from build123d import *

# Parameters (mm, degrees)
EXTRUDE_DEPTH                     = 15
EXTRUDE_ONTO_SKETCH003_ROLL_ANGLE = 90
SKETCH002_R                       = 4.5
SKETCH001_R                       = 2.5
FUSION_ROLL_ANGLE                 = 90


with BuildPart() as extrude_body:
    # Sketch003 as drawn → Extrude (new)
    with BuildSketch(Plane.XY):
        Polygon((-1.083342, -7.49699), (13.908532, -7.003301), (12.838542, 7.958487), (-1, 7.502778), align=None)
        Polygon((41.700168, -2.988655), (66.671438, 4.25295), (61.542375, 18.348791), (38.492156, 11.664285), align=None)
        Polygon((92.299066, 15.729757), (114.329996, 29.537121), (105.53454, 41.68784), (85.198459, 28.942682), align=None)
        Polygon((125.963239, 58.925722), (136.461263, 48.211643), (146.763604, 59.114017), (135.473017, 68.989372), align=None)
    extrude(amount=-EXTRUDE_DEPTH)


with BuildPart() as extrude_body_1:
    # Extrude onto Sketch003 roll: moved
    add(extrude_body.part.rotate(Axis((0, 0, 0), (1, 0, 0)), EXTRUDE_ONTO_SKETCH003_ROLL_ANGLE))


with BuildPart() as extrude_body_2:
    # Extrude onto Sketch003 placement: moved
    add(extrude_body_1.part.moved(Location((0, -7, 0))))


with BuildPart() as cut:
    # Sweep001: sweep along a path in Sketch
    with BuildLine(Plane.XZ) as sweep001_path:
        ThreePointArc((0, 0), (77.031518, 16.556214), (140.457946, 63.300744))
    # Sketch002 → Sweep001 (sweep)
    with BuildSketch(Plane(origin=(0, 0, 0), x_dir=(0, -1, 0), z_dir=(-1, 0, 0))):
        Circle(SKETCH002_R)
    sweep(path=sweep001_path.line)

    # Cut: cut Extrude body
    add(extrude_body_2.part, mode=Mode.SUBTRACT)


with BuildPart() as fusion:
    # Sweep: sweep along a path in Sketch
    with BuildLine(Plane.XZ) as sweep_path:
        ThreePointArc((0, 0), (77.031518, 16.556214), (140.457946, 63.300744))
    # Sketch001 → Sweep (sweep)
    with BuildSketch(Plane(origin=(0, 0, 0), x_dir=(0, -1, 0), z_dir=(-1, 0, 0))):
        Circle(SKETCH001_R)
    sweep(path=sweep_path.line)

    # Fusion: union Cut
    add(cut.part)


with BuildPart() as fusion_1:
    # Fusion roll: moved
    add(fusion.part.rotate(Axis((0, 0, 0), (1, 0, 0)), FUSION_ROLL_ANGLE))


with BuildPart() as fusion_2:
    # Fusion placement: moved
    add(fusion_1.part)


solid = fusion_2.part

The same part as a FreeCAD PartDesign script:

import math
import FreeCAD as App
import Part
import Sketcher

V = App.Vector
Q = App.Units.Quantity


def add_polygon(sketch, points):
    """Adds a closed chain of lines whose ends are joined by coincident constraints."""
    first, n = sketch.GeometryCount, len(points)
    for a, b in zip(points, points[1:] + points[:1]):
        sketch.addGeometry(Part.LineSegment(App.Vector(*a, 0), App.Vector(*b, 0)), False)
    for i in range(n):
        sketch.addConstraint(Sketcher.Constraint("Coincident", first + i, 2, first + (i + 1) % n, 1))

doc = App.newDocument("Part")
body = doc.addObject("PartDesign::Body", "Body")
body.AllowCompound = True

sketch1 = doc.addObject("Sketcher::SketchObject", "Sketch")
body.addObject(sketch1)
sketch1.AttachmentSupport = (doc.XY_Plane, [""])
sketch1.MapMode = "FlatFace"
add_polygon(sketch1, [(-1, -7), (14, -7), (13, 8), (-1, 8)])
add_polygon(sketch1, [(42, -3), (67, 4), (62, 18), (38, 12)])
add_polygon(sketch1, [(92, 16), (114, 30), (106, 42), (85, 29)])
add_polygon(sketch1, [(126, 59), (136, 48), (147, 59), (135, 69)])
sketch1.addConstraint([
    Sketcher.Constraint("Parallel", 0, 2),
    Sketcher.Constraint("Parallel", 4, 6),
    Sketcher.Constraint("Parallel", 8, 10),
    Sketcher.Constraint("Parallel", 13, 15),
    Sketcher.Constraint("Equal", 0, 1),
    Sketcher.Constraint("Equal", 1, 3),
    Sketcher.Constraint("Equal", 3, 5),
    Sketcher.Constraint("Equal", 5, 7),
    Sketcher.Constraint("Equal", 4, 8),
    Sketcher.Constraint("Equal", 7, 9),
    Sketcher.Constraint("Equal", 6, 10),
    Sketcher.Constraint("Equal", 9, 11),
    Sketcher.Constraint("Equal", 11, 12),
    Sketcher.Constraint("Equal", 12, 13),
    Sketcher.Constraint("Equal", 13, 14),
    Sketcher.Constraint("Equal", 2, 15),
    Sketcher.Constraint("Distance", 0, Q("15 mm")),
    Sketcher.Constraint("DistanceX", 2, 2, -1, 1, Q("1 mm")),
    Sketcher.Constraint("Distance", 4, Q("26.000099 mm")),
    Sketcher.Constraint("Distance", 6, Q("23.9999 mm")),
    Sketcher.Constraint("DistanceY", 0, 2, -1, 1, Q("7.003301 mm")),
    Sketcher.Constraint("DistanceX", 9, 2, 15, 2, Q("20.428699 mm")),
    Sketcher.Constraint("DistanceY", 8, 2, 15, 2, Q("29.388601 mm")),
    Sketcher.Constraint("DistanceX", -1, 1, 0, 2, Q("13.908532 mm")),
    Sketcher.Constraint("DistanceY", -1, 1, 2, 2, Q("7.502778 mm")),
    Sketcher.Constraint("DistanceY", -1, 1, 4, 2, Q("4.25295 mm")),
    Sketcher.Constraint("DistanceY", -1, 1, 5, 2, Q("18.348791 mm")),
    Sketcher.Constraint("DistanceY", -1, 1, 8, 2, Q("29.537121 mm")),
    Sketcher.Constraint("DistanceX", -1, 1, 9, 2, Q("105.53454 mm")),
    Sketcher.Constraint("DistanceY", -1, 1, 9, 2, Q("41.68784 mm")),
    Sketcher.Constraint("DistanceX", 3, 2, 4, 2, Q("67.75478 mm")),
    Sketcher.Constraint("DistanceY", 10, 2, 12, 2, Q("19.268961 mm")),
])
pad1 = doc.addObject("PartDesign::Pad", "Pad")
body.addObject(pad1)
pad1.Profile = sketch1
pad1.Length = 15
pad1.Reversed = True
body2 = doc.addObject("PartDesign::Body", "Body001")
body2.AllowCompound = True
doc.recompute()

body.Placement = App.Placement(V(0, 0, 0), App.Rotation(V(1, 0, 0), 90))
boolean = doc.addObject("PartDesign::Boolean", "Boolean")
body2.addObject(boolean)
boolean.Type = "Fuse"
boolean.addObjects([body])
body3 = doc.addObject("PartDesign::Body", "Body002")
body3.AllowCompound = True
doc.recompute()

body2.Placement = App.Placement(V(0, -7, 0), App.Rotation(V(0, 0, 1), 0))
boolean2 = doc.addObject("PartDesign::Boolean", "Boolean001")
body3.addObject(boolean2)
boolean2.Type = "Fuse"
boolean2.addObjects([body2])
body4 = doc.addObject("PartDesign::Body", "Body003")
body4.AllowCompound = True

sketch2 = doc.addObject("Sketcher::SketchObject", "Sketch001")
body4.addObject(sketch2)
sketch2.AttachmentSupport = (doc.getObject("YZ_Plane003"), [""])
sketch2.MapMode = "FlatFace"
sketch2.addGeometry(Part.Circle(V(0, 0, 0), V(0, 0, 1), 4.5), False)
sketch2.addConstraint([
    Sketcher.Constraint("Coincident", 0, 3, -1, 1),
    Sketcher.Constraint("Diameter", 0, Q("9 mm")),
])

sketch3 = doc.addObject("Sketcher::SketchObject", "Sketch002")
body4.addObject(sketch3)
sketch3.AttachmentSupport = (doc.getObject("XZ_Plane003"), [""])
sketch3.MapMode = "FlatFace"
sketch3.addGeometry(Part.ArcOfCircle(Part.Circle(V(0, 187, 0), V(0, 0, 1), 187), math.radians(-90), math.radians(-41)), False)
sketch3.addConstraint([
    Sketcher.Constraint("Coincident", 0, 1, -1, 1),
    Sketcher.Constraint("PointOnObject", 0, 3, -2),
    Sketcher.Constraint("Radius", 0, Q("187.481356 mm")),
    Sketcher.Constraint("DistanceY", 0, 2, 0, 3, Q("124.180612 mm")),
])
doc.recompute()

additivepipe = doc.addObject("PartDesign::AdditivePipe", "AdditivePipe")
body4.addObject(additivepipe)
additivepipe.Profile = sketch2
additivepipe.Spine = (sketch3, ["Edge1"])
doc.recompute()

boolean3 = doc.addObject("PartDesign::Boolean", "Boolean002")
body4.addObject(boolean3)
boolean3.Type = "Cut"
boolean3.addObjects([body3])
body5 = doc.addObject("PartDesign::Body", "Body004")

sketch4 = doc.addObject("Sketcher::SketchObject", "Sketch003")
body5.addObject(sketch4)
sketch4.AttachmentSupport = (doc.getObject("YZ_Plane004"), [""])
sketch4.MapMode = "FlatFace"
sketch4.addGeometry(Part.Circle(V(0, 0, 0), V(0, 0, 1), 2.5), False)
sketch4.addConstraint([
    Sketcher.Constraint("Coincident", 0, 3, -1, 1),
    Sketcher.Constraint("Diameter", 0, Q("5 mm")),
])

sketch5 = doc.addObject("Sketcher::SketchObject", "Sketch004")
body5.addObject(sketch5)
sketch5.AttachmentSupport = (doc.getObject("XZ_Plane004"), [""])
sketch5.MapMode = "FlatFace"
sketch5.addGeometry(Part.ArcOfCircle(Part.Circle(V(0, 187, 0), V(0, 0, 1), 187), math.radians(-90), math.radians(-41)), False)
sketch5.addConstraint([
    Sketcher.Constraint("Coincident", 0, 1, -1, 1),
    Sketcher.Constraint("PointOnObject", 0, 3, -2),
    Sketcher.Constraint("Radius", 0, Q("187.481356 mm")),
    Sketcher.Constraint("DistanceY", 0, 2, 0, 3, Q("124.180612 mm")),
])
doc.recompute()

additivepipe2 = doc.addObject("PartDesign::AdditivePipe", "AdditivePipe001")
body5.addObject(additivepipe2)
additivepipe2.Profile = sketch4
additivepipe2.Spine = (sketch5, ["Edge1"])
doc.recompute()

boolean4 = doc.addObject("PartDesign::Boolean", "Boolean003")
body5.addObject(boolean4)
boolean4.Type = "Fuse"
boolean4.addObjects([body4])
body6 = doc.addObject("PartDesign::Body", "Body005")
doc.recompute()

body5.Placement = App.Placement(V(0, 0, 0), App.Rotation(V(1, 0, 0), 90))
boolean5 = doc.addObject("PartDesign::Boolean", "Boolean004")
body6.addObject(boolean5)
boolean5.Type = "Fuse"
boolean5.addObjects([body5])

doc.recompute()
